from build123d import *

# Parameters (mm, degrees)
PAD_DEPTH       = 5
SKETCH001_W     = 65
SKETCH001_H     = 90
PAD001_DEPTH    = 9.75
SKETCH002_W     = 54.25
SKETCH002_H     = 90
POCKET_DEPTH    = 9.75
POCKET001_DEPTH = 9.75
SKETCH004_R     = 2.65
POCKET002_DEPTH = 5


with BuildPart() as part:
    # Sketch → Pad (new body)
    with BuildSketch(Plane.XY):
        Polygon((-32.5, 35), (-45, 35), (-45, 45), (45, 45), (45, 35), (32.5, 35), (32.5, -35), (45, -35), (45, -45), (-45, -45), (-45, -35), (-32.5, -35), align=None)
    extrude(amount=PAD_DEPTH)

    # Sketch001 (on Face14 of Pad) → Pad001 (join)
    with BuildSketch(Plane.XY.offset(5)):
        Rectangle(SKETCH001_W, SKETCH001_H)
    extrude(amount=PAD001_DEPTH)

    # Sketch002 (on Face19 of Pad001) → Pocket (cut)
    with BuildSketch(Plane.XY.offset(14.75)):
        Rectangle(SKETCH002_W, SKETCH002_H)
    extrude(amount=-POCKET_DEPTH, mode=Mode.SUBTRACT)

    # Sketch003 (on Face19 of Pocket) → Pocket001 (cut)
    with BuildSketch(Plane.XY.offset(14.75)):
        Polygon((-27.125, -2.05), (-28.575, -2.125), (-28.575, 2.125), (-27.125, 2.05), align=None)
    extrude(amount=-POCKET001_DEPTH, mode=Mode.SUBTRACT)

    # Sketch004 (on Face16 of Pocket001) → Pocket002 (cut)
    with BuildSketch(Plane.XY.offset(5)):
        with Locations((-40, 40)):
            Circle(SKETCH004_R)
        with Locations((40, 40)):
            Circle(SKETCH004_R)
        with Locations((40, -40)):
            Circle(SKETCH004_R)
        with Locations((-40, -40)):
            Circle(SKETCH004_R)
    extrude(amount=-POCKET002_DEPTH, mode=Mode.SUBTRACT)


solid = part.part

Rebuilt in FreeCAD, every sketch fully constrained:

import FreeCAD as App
import Part
import Sketcher
from FreeCAD import Vector
Q = App.Units.Quantity


def add_polygon(sketch, points):
    """Adds a closed chain of lines whose ends are joined by coincident constraints."""
    first, n = sketch.GeometryCount, len(points)
    for a, b in zip(points, points[1:] + points[:1]):
        sketch.addGeometry(Part.LineSegment(App.Vector(*a, 0), App.Vector(*b, 0)), False)
    for i in range(n):
        sketch.addConstraint(Sketcher.Constraint("Coincident", first + i, 2, first + (i + 1) % n, 1))

doc = App.newDocument("Part")
body = doc.addObject("PartDesign::Body", "Body")

sketch1 = doc.addObject("Sketcher::SketchObject", "Sketch")
body.addObject(sketch1)
sketch1.AttachmentSupport = (doc.XY_Plane, [""])
sketch1.MapMode = "FlatFace"
add_polygon(sketch1, [(-45, 35), (-32, 35), (-32, -35), (-45, -35), (-45, -45), (45, -45), (45, -35), (32, -35), (32, 35), (45, 35), (45, 45), (-45, 45)])
sketch1.addConstraint(Sketcher.Constraint("Horizontal", 0))
sketch1.addConstraint(Sketcher.Constraint("Vertical", 1))
sketch1.addConstraint(Sketcher.Constraint("Horizontal", 2))
sketch1.addConstraint(Sketcher.Constraint("Vertical", 3))
sketch1.addConstraint(Sketcher.Constraint("Horizontal", 4))
sketch1.addConstraint(Sketcher.Constraint("Vertical", 5))
sketch1.addConstraint(Sketcher.Constraint("Horizontal", 6))
sketch1.addConstraint(Sketcher.Constraint("Vertical", 7))
sketch1.addConstraint(Sketcher.Constraint("Horizontal", 8))
sketch1.addConstraint(Sketcher.Constraint("Vertical", 9))
sketch1.addConstraint(Sketcher.Constraint("Horizontal", 10))
sketch1.addConstraint(Sketcher.Constraint("Vertical", 11))
sketch1.addConstraint(Sketcher.Constraint("Symmetric", 0, 2, 6, 2, -1, 1))
sketch1.addConstraint(Sketcher.Constraint("Symmetric", 2, 2, 8, 2, -1, 1))
sketch1.addConstraint(Sketcher.Constraint("Symmetric", 4, 2, 10, 2, -1, 1))
sketch1.addConstraint(Sketcher.Constraint("Symmetric", 2, 2, 5, 2, -2))
sketch1.addConstraint(Sketcher.Constraint("DistanceX", 4, 1, 4, 2, Q("90 mm")))
sketch1.addConstraint(Sketcher.Constraint("DistanceY", 1, 2, 1, 1, Q("70 mm")))
sketch1.addConstraint(Sketcher.Constraint("DistanceY", 3, 2, 3, 1, Q("10 mm")))
sketch1.addConstraint(Sketcher.Constraint("DistanceX", 0, 1, 0, 2, Q("12.5 mm")))
pad1 = doc.addObject("PartDesign::Pad", "Pad")
body.addObject(pad1)
pad1.Profile = sketch1
pad1.Length = 5

sketch2 = doc.addObject("Sketcher::SketchObject", "Sketch001")
body.addObject(sketch2)
sketch2.AttachmentSupport = (doc.XY_Plane, [""])
sketch2.MapMode = "FlatFace"
sketch2.AttachmentOffset = App.Placement(Vector(0, 0, 5), App.Rotation())
add_polygon(sketch2, [(-32, 45), (-32, -45), (32, -45), (32, 45)])
sketch2.addConstraint(Sketcher.Constraint("Vertical", 0))
sketch2.addConstraint(Sketcher.Constraint("Horizontal", 1))
sketch2.addConstraint(Sketcher.Constraint("Vertical", 2))
sketch2.addConstraint(Sketcher.Constraint("Horizontal", 3))
sketch2.addConstraint(Sketcher.Constraint("Symmetric", 0, 2, 2, 2, -1, 1))
sketch2.addConstraint(Sketcher.Constraint("DistanceX", 1, 1, 1, 2, Q("65 mm")))
sketch2.addConstraint(Sketcher.Constraint("DistanceY", 0, 2, 0, 1, Q("90 mm")))
pad2 = doc.addObject("PartDesign::Pad", "Pad001")
body.addObject(pad2)
pad2.Profile = sketch2
pad2.Length = 9.75

sketch3 = doc.addObject("Sketcher::SketchObject", "Sketch002")
body.addObject(sketch3)
sketch3.AttachmentSupport = (doc.XY_Plane, [""])
sketch3.MapMode = "FlatFace"
sketch3.AttachmentOffset = App.Placement(Vector(0, 0, 14.75), App.Rotation())
add_polygon(sketch3, [(-27, 45), (-27, -45), (27, -45), (27, 45)])
sketch3.addConstraint(Sketcher.Constraint("Vertical", 0))
sketch3.addConstraint(Sketcher.Constraint("Horizontal", 1))
sketch3.addConstraint(Sketcher.Constraint("Vertical", 2))
sketch3.addConstraint(Sketcher.Constraint("Horizontal", 3))
sketch3.addConstraint(Sketcher.Constraint("Symmetric", 0, 2, 2, 2, -1, 1))
sketch3.addConstraint(Sketcher.Constraint("DistanceY", 0, 2, 0, 1, Q("90 mm")))
sketch3.addConstraint(Sketcher.Constraint("DistanceX", 1, 1, 1, 2, Q("54.25 mm")))
pocket1 = doc.addObject("PartDesign::Pocket", "Pocket")
body.addObject(pocket1)
pocket1.Profile = sketch3
pocket1.Length = 9.75

sketch4 = doc.addObject("Sketcher::SketchObject", "Sketch003")
body.addObject(sketch4)
sketch4.AttachmentSupport = (doc.XY_Plane, [""])
sketch4.MapMode = "FlatFace"
sketch4.AttachmentOffset = App.Placement(Vector(0, 0, 14.75), App.Rotation())
add_polygon(sketch4, [(-28.6, -2.1), (-27.1, -2), (-27.1, 2), (-28.6, 2.1)])
sketch4.addConstraint(Sketcher.Constraint("Vertical", 1))
sketch4.addConstraint(Sketcher.Constraint("Vertical", 3))
sketch4.addConstraint(Sketcher.Constraint("Equal", 0, 2))
sketch4.addConstraint(Sketcher.Constraint("DistanceY", 1, 1, 1, 2, Q("4.1 mm")))
sketch4.addConstraint(Sketcher.Constraint("DistanceY", 3, 2, 3, 1, Q("4.25 mm")))
sketch4.addConstraint(Sketcher.Constraint("DistanceY", 0, 2, -1, 1, Q("2.05 mm")))
sketch4.addConstraint(Sketcher.Constraint("DistanceX", 2, 2, 1, 2, Q("1.45 mm")))
sketch4.addConstraint(Sketcher.Constraint("DistanceX", 0, 2, -1, 1, Q("27.125 mm")))
pocket2 = doc.addObject("PartDesign::Pocket", "Pocket001")
body.addObject(pocket2)
pocket2.Profile = sketch4
pocket2.Length = 9.75

sketch5 = doc.addObject("Sketcher::SketchObject", "Sketch004")
body.addObject(sketch5)
sketch5.AttachmentSupport = (doc.XY_Plane, [""])
sketch5.MapMode = "FlatFace"
sketch5.AttachmentOffset = App.Placement(Vector(0, 0, 5), App.Rotation())
sketch5.addGeometry(Part.Circle(Vector(-40, 40, 0), Vector(0, 0, 1), 2.6), False)
sketch5.addGeometry(Part.Circle(Vector(40, 40, 0), Vector(0, 0, 1), 2.6), False)
sketch5.addGeometry(Part.Circle(Vector(40, -40, 0), Vector(0, 0, 1), 2.6), False)
sketch5.addGeometry(Part.Circle(Vector(-40, -40, 0), Vector(0, 0, 1), 2.6), False)
sketch5.addConstraint(Sketcher.Constraint("Equal", 0, 1))
sketch5.addConstraint(Sketcher.Constraint("Equal", 1, 2))
sketch5.addConstraint(Sketcher.Constraint("Equal", 2, 3))
sketch5.addConstraint(Sketcher.Constraint("Symmetric", 0, 3, 2, 3, -1, 1))
sketch5.addConstraint(Sketcher.Constraint("Symmetric", 1, 3, 3, 3, -1, 1))
sketch5.addConstraint(Sketcher.Constraint("Symmetric", 0, 3, 1, 3, -2))
sketch5.addConstraint(Sketcher.Constraint("Diameter", 0, Q("5.3 mm")))
sketch5.addConstraint(Sketcher.Constraint("DistanceX", 0, 3, -1, 1, Q("40 mm")))
sketch5.addConstraint(Sketcher.Constraint("DistanceY", -1, 1, 0, 3, Q("40 mm")))
pocket3 = doc.addObject("PartDesign::Pocket", "Pocket002")
body.addObject(pocket3)
pocket3.Profile = sketch5
pocket3.Length = 5

doc.recompute()
